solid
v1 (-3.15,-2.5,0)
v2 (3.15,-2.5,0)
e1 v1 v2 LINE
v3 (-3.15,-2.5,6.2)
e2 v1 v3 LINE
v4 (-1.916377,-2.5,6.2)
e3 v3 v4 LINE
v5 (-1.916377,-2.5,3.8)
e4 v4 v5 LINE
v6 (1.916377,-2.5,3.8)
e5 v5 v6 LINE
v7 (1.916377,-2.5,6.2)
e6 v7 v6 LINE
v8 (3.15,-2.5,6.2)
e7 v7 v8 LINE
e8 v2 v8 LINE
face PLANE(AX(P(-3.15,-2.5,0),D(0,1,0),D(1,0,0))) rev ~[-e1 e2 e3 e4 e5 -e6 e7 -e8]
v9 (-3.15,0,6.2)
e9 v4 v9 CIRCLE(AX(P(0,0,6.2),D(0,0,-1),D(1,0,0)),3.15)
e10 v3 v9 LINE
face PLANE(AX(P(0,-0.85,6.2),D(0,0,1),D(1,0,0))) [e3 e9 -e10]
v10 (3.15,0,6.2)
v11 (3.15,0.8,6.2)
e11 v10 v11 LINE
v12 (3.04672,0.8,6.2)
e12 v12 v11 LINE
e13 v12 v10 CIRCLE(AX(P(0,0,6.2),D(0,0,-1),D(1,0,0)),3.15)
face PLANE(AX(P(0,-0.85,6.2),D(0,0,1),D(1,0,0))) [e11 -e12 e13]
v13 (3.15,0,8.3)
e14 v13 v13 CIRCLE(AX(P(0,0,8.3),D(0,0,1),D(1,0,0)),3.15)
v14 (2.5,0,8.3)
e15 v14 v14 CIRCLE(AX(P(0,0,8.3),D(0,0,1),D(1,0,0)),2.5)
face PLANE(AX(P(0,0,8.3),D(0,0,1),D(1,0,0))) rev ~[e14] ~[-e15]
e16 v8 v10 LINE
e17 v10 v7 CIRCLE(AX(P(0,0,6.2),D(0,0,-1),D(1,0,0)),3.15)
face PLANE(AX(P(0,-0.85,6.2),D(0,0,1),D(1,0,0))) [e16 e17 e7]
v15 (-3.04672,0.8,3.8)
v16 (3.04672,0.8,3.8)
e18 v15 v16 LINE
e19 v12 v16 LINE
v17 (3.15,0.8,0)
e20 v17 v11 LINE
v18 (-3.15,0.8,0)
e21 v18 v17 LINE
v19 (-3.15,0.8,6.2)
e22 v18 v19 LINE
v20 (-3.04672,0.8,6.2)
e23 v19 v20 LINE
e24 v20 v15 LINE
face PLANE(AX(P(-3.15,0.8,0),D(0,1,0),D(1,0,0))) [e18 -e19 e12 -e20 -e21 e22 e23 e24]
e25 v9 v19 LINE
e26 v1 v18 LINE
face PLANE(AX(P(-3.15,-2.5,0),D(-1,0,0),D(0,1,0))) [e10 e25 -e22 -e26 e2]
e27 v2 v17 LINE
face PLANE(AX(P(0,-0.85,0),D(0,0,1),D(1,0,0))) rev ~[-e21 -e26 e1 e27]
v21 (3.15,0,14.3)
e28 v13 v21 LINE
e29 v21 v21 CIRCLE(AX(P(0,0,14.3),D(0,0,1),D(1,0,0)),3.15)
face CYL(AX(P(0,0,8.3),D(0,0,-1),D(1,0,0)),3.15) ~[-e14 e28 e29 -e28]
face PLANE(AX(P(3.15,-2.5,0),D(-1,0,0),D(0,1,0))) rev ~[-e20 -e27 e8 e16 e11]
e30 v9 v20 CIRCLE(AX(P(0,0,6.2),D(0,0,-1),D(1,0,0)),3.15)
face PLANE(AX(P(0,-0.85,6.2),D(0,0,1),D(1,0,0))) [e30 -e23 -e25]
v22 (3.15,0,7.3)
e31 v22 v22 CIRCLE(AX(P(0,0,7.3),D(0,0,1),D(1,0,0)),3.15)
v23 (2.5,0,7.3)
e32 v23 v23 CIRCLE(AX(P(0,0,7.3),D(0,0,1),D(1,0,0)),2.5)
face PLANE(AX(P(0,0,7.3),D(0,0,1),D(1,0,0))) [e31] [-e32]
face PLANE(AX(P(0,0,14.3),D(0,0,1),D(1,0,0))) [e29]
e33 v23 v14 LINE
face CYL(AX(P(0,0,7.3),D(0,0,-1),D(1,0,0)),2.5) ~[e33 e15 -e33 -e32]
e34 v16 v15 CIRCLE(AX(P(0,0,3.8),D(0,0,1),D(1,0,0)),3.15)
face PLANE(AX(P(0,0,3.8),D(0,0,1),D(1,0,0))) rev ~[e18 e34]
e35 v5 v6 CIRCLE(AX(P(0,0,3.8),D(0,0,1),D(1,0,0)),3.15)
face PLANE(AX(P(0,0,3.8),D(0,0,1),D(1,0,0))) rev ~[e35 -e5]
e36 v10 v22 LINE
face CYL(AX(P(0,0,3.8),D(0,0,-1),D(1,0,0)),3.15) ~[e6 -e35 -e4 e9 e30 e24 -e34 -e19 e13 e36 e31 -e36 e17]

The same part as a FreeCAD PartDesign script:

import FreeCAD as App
import Part
import Sketcher
from FreeCAD import Vector

doc = App.newDocument("Part")
body = doc.addObject("PartDesign::Body", "Body")

# Sketch on XY plane
sketch1 = body.newObject("Sketcher::SketchObject", "Sketch")
sketch1.AttachmentSupport = (doc.getObject("XY_Plane"), [""])
sketch1.MapMode = "FlatFace"
sketch1.addGeometry(Part.LineSegment(Vector(-3.1, 0.8, 0), Vector(-3.1, -2.5, 0)), False)
sketch1.addGeometry(Part.LineSegment(Vector(-3.1, -2.5, 0), Vector(3.1, -2.5, 0)), False)
sketch1.addGeometry(Part.LineSegment(Vector(3.1, -2.5, 0), Vector(3.1, 0.8, 0)), False)
sketch1.addGeometry(Part.LineSegment(Vector(3.1, 0.8, 0), Vector(-3.1, 0.8, 0)), False)
sketch1.addConstraint(Sketcher.Constraint("Coincident", 0, 2, 1, 1))
sketch1.addConstraint(Sketcher.Constraint("Coincident", 1, 2, 2, 1))
sketch1.addConstraint(Sketcher.Constraint("Coincident", 2, 2, 3, 1))
sketch1.addConstraint(Sketcher.Constraint("Coincident", 3, 2, 0, 1))
sketch1.addConstraint(Sketcher.Constraint("Vertical", 0))
sketch1.addConstraint(Sketcher.Constraint("Horizontal", 1))
sketch1.addConstraint(Sketcher.Constraint("Vertical", 2))
sketch1.addConstraint(Sketcher.Constraint("Horizontal", 3))
sketch1.addConstraint(Sketcher.Constraint("DistanceX", 1, 1, 1, 2, 6.3))
sketch1.addConstraint(Sketcher.Constraint("DistanceY", 0, 2, 0, 1, 3.3))
sketch1.addConstraint(Sketcher.Constraint("DistanceY", 0, 2, -1, 1, 2.5))
sketch1.addConstraint(Sketcher.Constraint("DistanceX", 0, 2, -1, 1, 3.15))
pad1 = body.newObject("PartDesign::Pad", "Pad")
pad1.Profile = sketch1
pad1.Length = 6.2

# Sketch on XY plane
sketch2 = body.newObject("Sketcher::SketchObject", "Sketch001")
sketch2.AttachmentSupport = (doc.getObject("XY_Plane"), [""])
sketch2.MapMode = "FlatFace"
sketch2.AttachmentOffset = App.Placement(Vector(0, 0, 3.8), App.Rotation())
sketch2.addGeometry(Part.Circle(Vector(0, 0, 0), Vector(0, 0, 1), 3.1), False)
sketch2.addConstraint(Sketcher.Constraint("Coincident", 0, 3, -1, 1))
sketch2.addConstraint(Sketcher.Constraint("Diameter", 0, 6.3))
pad2 = body.newObject("PartDesign::Pad", "Pad001")
pad2.Profile = sketch2
pad2.Length = 3.5

# Sketch on XY plane
sketch3 = body.newObject("Sketcher::SketchObject", "Sketch002")
sketch3.AttachmentSupport = (doc.getObject("XY_Plane"), [""])
sketch3.MapMode = "FlatFace"
sketch3.AttachmentOffset = App.Placement(Vector(0, 0, 7.3), App.Rotation())
sketch3.addGeometry(Part.Circle(Vector(0, 0, 0), Vector(0, 0, 1), 2.5), False)
sketch3.addConstraint(Sketcher.Constraint("Coincident", 0, 3, -1, 1))
sketch3.addConstraint(Sketcher.Constraint("Diameter", 0, 5.0))
pad3 = body.newObject("PartDesign::Pad", "Pad002")
pad3.Profile = sketch3
pad3.Length = 1

# Sketch on XY plane
sketch4 = body.newObject("Sketcher::SketchObject", "Sketch003")
sketch4.AttachmentSupport = (doc.getObject("XY_Plane"), [""])
sketch4.MapMode = "FlatFace"
sketch4.AttachmentOffset = App.Placement(Vector(0, 0, 8.3), App.Rotation())
sketch4.addGeometry(Part.Circle(Vector(0, 0, 0), Vector(0, 0, 1), 3.1), False)
sketch4.addConstraint(Sketcher.Constraint("Coincident", 0, 3, -1, 1))
sketch4.addConstraint(Sketcher.Constraint("Diameter", 0, 6.3))
pad4 = body.newObject("PartDesign::Pad", "Pad003")
pad4.Profile = sketch4
pad4.Length = 6

doc.recompute()
